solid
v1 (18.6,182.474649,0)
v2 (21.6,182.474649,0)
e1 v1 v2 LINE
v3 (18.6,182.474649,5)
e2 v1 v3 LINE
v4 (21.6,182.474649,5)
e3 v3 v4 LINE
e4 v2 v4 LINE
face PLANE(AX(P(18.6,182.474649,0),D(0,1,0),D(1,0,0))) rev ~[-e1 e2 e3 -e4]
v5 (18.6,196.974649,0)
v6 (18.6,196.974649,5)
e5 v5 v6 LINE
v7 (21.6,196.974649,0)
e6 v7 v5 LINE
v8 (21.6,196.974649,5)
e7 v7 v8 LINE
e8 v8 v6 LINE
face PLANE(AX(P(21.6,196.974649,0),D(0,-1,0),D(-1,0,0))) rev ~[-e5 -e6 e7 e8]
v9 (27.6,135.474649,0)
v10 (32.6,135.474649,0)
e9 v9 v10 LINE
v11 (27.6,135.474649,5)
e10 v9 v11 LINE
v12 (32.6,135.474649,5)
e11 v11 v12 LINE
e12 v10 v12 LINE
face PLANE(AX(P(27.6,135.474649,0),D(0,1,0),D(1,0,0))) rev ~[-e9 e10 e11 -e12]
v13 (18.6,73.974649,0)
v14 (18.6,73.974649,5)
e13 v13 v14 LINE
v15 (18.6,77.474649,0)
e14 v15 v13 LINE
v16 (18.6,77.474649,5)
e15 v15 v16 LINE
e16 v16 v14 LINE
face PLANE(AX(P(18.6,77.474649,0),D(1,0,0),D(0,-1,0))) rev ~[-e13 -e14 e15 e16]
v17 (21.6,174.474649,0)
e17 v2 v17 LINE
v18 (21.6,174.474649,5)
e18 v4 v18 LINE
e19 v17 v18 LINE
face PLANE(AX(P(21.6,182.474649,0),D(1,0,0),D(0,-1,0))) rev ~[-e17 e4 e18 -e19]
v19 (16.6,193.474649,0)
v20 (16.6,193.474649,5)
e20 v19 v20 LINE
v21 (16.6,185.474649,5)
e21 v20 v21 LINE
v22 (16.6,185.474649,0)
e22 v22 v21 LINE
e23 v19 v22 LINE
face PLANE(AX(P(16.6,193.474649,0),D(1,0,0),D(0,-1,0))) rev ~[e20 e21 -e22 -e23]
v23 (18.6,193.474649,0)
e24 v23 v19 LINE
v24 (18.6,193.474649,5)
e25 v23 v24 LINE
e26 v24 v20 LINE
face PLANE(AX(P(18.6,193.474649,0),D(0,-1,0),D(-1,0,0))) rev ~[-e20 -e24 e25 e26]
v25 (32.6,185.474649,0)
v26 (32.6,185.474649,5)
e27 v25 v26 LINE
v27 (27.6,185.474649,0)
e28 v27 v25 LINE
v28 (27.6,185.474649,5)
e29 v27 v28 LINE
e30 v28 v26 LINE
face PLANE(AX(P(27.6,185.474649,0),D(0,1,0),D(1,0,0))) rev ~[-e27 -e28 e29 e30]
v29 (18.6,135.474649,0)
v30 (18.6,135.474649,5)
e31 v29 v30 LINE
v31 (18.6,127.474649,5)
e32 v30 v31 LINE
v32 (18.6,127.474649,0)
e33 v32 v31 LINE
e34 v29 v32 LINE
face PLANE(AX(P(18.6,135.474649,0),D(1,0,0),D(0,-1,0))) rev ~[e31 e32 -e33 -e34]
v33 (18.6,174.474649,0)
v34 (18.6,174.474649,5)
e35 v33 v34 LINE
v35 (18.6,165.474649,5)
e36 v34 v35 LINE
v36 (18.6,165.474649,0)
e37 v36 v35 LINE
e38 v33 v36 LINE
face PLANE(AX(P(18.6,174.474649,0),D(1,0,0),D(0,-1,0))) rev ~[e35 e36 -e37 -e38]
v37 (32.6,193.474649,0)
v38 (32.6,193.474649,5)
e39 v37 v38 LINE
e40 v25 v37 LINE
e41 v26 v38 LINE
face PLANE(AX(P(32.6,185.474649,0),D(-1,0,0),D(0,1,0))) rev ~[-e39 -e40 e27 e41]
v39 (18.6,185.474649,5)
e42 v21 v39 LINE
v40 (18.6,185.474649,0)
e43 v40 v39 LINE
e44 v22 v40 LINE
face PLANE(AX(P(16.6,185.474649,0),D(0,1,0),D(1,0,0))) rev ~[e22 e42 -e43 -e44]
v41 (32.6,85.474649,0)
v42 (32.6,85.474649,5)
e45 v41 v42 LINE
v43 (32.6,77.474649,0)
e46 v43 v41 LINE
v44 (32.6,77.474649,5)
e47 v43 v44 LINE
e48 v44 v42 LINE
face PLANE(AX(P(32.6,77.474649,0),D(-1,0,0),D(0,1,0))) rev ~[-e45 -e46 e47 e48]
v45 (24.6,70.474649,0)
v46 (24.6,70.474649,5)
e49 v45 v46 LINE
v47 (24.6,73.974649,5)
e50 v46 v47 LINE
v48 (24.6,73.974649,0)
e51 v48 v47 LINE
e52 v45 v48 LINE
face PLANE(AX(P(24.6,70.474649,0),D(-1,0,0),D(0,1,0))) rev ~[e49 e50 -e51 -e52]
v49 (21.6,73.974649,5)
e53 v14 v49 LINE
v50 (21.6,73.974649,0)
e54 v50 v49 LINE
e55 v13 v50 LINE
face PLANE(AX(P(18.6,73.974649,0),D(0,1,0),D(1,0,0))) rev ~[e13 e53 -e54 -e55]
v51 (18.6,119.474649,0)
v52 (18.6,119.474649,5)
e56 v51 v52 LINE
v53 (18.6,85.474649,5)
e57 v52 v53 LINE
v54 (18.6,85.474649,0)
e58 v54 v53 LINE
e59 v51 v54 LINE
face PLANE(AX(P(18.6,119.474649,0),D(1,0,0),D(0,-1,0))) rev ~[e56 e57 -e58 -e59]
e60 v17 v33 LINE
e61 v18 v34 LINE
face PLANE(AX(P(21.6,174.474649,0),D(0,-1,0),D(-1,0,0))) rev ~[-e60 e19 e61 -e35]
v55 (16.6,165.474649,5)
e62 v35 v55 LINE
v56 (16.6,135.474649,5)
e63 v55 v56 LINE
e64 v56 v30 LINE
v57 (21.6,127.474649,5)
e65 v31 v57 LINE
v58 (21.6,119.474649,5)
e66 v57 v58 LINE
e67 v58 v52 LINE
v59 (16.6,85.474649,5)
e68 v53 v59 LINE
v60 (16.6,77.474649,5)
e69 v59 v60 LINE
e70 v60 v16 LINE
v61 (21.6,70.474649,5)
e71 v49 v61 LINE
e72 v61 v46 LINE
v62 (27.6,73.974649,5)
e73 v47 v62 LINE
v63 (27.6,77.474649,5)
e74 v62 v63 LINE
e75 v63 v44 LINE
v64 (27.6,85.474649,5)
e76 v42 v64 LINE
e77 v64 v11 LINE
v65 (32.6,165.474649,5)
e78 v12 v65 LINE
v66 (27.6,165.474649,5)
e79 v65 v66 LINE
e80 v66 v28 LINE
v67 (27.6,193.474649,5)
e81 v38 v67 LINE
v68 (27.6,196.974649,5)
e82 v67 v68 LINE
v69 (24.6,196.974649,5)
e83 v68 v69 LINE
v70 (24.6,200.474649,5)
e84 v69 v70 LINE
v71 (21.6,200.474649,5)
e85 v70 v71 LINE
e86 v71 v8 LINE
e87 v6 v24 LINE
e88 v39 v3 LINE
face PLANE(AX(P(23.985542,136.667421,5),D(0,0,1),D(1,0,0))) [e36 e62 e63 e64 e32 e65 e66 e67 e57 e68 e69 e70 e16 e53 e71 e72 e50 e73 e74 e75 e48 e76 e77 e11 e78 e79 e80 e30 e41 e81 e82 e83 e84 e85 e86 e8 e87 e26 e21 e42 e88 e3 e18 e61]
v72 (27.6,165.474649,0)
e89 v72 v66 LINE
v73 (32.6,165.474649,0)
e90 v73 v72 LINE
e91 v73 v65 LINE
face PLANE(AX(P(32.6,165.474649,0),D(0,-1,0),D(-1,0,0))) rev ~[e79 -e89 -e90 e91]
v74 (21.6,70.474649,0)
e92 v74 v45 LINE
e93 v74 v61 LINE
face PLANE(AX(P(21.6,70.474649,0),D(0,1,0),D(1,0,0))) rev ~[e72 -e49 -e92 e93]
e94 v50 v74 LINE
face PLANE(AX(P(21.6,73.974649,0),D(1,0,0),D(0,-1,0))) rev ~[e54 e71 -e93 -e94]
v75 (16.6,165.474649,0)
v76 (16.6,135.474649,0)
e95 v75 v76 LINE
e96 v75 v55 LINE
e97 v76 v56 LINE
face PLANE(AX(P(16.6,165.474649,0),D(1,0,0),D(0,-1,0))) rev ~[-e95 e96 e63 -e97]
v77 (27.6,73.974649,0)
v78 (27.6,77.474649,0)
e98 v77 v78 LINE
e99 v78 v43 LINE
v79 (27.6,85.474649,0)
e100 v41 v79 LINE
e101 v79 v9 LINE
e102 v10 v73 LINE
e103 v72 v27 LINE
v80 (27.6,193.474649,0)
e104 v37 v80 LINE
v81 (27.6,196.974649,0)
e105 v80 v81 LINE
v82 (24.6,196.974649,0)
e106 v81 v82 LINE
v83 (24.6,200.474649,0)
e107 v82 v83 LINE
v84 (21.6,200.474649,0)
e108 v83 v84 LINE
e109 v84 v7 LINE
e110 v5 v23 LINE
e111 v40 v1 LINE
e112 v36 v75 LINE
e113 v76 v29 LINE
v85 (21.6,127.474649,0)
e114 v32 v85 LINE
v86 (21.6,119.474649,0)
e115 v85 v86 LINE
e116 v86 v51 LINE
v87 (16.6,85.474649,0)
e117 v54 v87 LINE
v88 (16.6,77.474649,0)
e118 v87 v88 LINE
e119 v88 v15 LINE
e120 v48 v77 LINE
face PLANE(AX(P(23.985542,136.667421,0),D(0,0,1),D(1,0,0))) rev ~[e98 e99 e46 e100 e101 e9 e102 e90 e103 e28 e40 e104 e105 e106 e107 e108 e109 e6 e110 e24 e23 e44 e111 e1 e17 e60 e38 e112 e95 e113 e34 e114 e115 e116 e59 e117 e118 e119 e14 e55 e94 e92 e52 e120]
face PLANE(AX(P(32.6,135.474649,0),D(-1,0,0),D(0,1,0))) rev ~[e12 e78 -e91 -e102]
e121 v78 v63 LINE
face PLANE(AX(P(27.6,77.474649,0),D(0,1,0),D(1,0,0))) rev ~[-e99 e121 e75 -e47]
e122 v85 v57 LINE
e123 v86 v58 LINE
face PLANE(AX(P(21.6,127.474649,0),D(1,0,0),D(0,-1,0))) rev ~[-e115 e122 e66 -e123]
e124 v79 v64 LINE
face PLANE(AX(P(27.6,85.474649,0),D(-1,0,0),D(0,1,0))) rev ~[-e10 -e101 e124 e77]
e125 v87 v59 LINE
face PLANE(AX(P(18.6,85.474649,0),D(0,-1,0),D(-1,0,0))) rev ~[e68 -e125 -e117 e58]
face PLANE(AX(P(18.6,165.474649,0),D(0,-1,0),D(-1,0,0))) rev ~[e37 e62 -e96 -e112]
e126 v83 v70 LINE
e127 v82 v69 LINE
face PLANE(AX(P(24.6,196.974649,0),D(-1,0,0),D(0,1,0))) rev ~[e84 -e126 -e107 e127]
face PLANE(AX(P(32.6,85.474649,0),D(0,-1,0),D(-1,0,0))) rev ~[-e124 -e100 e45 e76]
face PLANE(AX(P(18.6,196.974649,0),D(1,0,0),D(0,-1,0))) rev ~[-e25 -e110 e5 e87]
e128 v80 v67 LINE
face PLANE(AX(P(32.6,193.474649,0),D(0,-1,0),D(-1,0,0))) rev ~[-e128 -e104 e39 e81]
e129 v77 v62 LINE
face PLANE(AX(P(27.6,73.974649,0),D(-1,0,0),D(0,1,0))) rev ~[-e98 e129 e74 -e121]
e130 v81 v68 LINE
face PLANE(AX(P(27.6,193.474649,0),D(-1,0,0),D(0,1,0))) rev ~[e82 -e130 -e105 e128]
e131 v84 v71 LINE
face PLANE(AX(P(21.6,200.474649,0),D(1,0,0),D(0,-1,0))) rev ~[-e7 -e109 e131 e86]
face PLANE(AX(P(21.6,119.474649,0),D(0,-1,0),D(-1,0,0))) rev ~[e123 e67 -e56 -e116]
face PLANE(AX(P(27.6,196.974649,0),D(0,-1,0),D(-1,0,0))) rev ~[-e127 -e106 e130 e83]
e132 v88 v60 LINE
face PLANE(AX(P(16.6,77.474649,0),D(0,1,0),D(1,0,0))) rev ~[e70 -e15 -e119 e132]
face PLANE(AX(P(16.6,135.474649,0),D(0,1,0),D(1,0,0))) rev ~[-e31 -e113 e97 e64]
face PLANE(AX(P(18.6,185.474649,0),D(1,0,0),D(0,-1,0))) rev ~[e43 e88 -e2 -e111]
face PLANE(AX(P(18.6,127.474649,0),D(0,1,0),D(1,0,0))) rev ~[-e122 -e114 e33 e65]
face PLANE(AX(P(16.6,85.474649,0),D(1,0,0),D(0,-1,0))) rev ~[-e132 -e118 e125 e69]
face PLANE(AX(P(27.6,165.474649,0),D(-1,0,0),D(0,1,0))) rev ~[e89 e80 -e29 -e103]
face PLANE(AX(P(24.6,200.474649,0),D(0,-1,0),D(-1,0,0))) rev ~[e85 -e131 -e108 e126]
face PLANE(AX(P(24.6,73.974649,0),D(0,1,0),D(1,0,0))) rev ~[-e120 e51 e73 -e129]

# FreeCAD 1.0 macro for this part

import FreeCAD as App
import Part
import Sketcher

doc = App.newDocument("Part")
body = doc.addObject("PartDesign::Body", "Body")

# Sketch on XY plane
sketch1 = doc.addObject("Sketcher::SketchObject", "Sketch")
body.addObject(sketch1)
sketch1.AttachmentSupport = (doc.XY_Plane, [""])
sketch1.MapMode = "FlatFace"
sketch1.addGeometry([
    Part.LineSegment(App.Vector(18.6, 77.5, 0), App.Vector(18.6, 74, 0)),  # 0
    Part.LineSegment(App.Vector(18.6, 74, 0), App.Vector(21.6, 74, 0)),  # 1
    Part.LineSegment(App.Vector(21.6, 74, 0), App.Vector(21.6, 70.5, 0)),  # 2
    Part.LineSegment(App.Vector(21.6, 70.5, 0), App.Vector(24.6, 70.5, 0)),  # 3
    Part.LineSegment(App.Vector(24.6, 70.5, 0), App.Vector(24.6, 74, 0)),  # 4
    Part.LineSegment(App.Vector(24.6, 74, 0), App.Vector(27.6, 74, 0)),  # 5
    Part.LineSegment(App.Vector(27.6, 74, 0), App.Vector(27.6, 77.5, 0)),  # 6
    Part.LineSegment(App.Vector(27.6, 77.5, 0), App.Vector(32.6, 77.5, 0)),  # 7
    Part.LineSegment(App.Vector(32.6, 77.5, 0), App.Vector(32.6, 85.5, 0)),  # 8
    Part.LineSegment(App.Vector(32.6, 85.5, 0), App.Vector(27.6, 85.5, 0)),  # 9
    Part.LineSegment(App.Vector(27.6, 85.5, 0), App.Vector(27.6, 135.5, 0)),  # 10
    Part.LineSegment(App.Vector(27.6, 135.5, 0), App.Vector(32.6, 135.5, 0)),  # 11
    Part.LineSegment(App.Vector(32.6, 135.5, 0), App.Vector(32.6, 165.5, 0)),  # 12
    Part.LineSegment(App.Vector(32.6, 165.5, 0), App.Vector(27.6, 165.5, 0)),  # 13
    Part.LineSegment(App.Vector(27.6, 165.5, 0), App.Vector(27.6, 185.5, 0)),  # 14
    Part.LineSegment(App.Vector(27.6, 185.5, 0), App.Vector(32.6, 185.5, 0)),  # 15
    Part.LineSegment(App.Vector(32.6, 185.5, 0), App.Vector(32.6, 193.5, 0)),  # 16
    Part.LineSegment(App.Vector(32.6, 193.5, 0), App.Vector(27.6, 193.5, 0)),  # 17
    Part.LineSegment(App.Vector(27.6, 193.5, 0), App.Vector(27.6, 197, 0)),  # 18
    Part.LineSegment(App.Vector(27.6, 197, 0), App.Vector(24.6, 197, 0)),  # 19
    Part.LineSegment(App.Vector(24.6, 197, 0), App.Vector(24.6, 200.5, 0)),  # 20
    Part.LineSegment(App.Vector(24.6, 200.5, 0), App.Vector(21.6, 200.5, 0)),  # 21
    Part.LineSegment(App.Vector(21.6, 200.5, 0), App.Vector(21.6, 197, 0)),  # 22
    Part.LineSegment(App.Vector(21.6, 197, 0), App.Vector(18.6, 197, 0)),  # 23
    Part.LineSegment(App.Vector(18.6, 197, 0), App.Vector(18.6, 193.5, 0)),  # 24
    Part.LineSegment(App.Vector(18.6, 193.5, 0), App.Vector(16.6, 193.5, 0)),  # 25
    Part.LineSegment(App.Vector(16.6, 193.5, 0), App.Vector(16.6, 185.5, 0)),  # 26
    Part.LineSegment(App.Vector(16.6, 185.5, 0), App.Vector(18.6, 185.5, 0)),  # 27
    Part.LineSegment(App.Vector(18.6, 185.5, 0), App.Vector(18.6, 182.5, 0)),  # 28
    Part.LineSegment(App.Vector(18.6, 182.5, 0), App.Vector(21.6, 182.5, 0)),  # 29
    Part.LineSegment(App.Vector(21.6, 182.5, 0), App.Vector(21.6, 174.5, 0)),  # 30
    Part.LineSegment(App.Vector(21.6, 174.5, 0), App.Vector(18.6, 174.5, 0)),  # 31
    Part.LineSegment(App.Vector(18.6, 174.5, 0), App.Vector(18.6, 165.5, 0)),  # 32
    Part.LineSegment(App.Vector(18.6, 165.5, 0), App.Vector(16.6, 165.5, 0)),  # 33
    Part.LineSegment(App.Vector(16.6, 165.5, 0), App.Vector(16.6, 135.5, 0)),  # 34
    Part.LineSegment(App.Vector(16.6, 135.5, 0), App.Vector(18.6, 135.5, 0)),  # 35
    Part.LineSegment(App.Vector(18.6, 135.5, 0), App.Vector(18.6, 127.5, 0)),  # 36
    Part.LineSegment(App.Vector(18.6, 127.5, 0), App.Vector(21.6, 127.5, 0)),  # 37
    Part.LineSegment(App.Vector(21.6, 127.5, 0), App.Vector(21.6, 119.5, 0)),  # 38
    Part.LineSegment(App.Vector(21.6, 119.5, 0), App.Vector(18.6, 119.5, 0)),  # 39
    Part.LineSegment(App.Vector(18.6, 119.5, 0), App.Vector(18.6, 85.5, 0)),  # 40
    Part.LineSegment(App.Vector(18.6, 85.5, 0), App.Vector(16.6, 85.5, 0)),  # 41
    Part.LineSegment(App.Vector(16.6, 85.5, 0), App.Vector(16.6, 77.5, 0)),  # 42
    Part.LineSegment(App.Vector(16.6, 77.5, 0), App.Vector(18.6, 77.5, 0)),  # 43
], False)
sketch1.addConstraint([
    Sketcher.Constraint("Coincident", 0, 2, 1, 1),
    Sketcher.Constraint("Coincident", 1, 2, 2, 1),
    Sketcher.Constraint("Coincident", 2, 2, 3, 1),
    Sketcher.Constraint("Coincident", 3, 2, 4, 1),
    Sketcher.Constraint("Coincident", 4, 2, 5, 1),
    Sketcher.Constraint("Coincident", 5, 2, 6, 1),
    Sketcher.Constraint("Coincident", 6, 2, 7, 1),
    Sketcher.Constraint("Coincident", 7, 2, 8, 1),
    Sketcher.Constraint("Coincident", 8, 2, 9, 1),
    Sketcher.Constraint("Coincident", 9, 2, 10, 1),
    Sketcher.Constraint("Coincident", 10, 2, 11, 1),
    Sketcher.Constraint("Coincident", 11, 2, 12, 1),
    Sketcher.Constraint("Coincident", 12, 2, 13, 1),
    Sketcher.Constraint("Coincident", 13, 2, 14, 1),
    Sketcher.Constraint("Coincident", 14, 2, 15, 1),
    Sketcher.Constraint("Coincident", 15, 2, 16, 1),
    Sketcher.Constraint("Coincident", 16, 2, 17, 1),
    Sketcher.Constraint("Coincident", 17, 2, 18, 1),
    Sketcher.Constraint("Coincident", 18, 2, 19, 1),
    Sketcher.Constraint("Coincident", 19, 2, 20, 1),
    Sketcher.Constraint("Coincident", 20, 2, 21, 1),
    Sketcher.Constraint("Coincident", 21, 2, 22, 1),
    Sketcher.Constraint("Coincident", 22, 2, 23, 1),
    Sketcher.Constraint("Coincident", 23, 2, 24, 1),
    Sketcher.Constraint("Coincident", 24, 2, 25, 1),
    Sketcher.Constraint("Coincident", 25, 2, 26, 1),
    Sketcher.Constraint("Coincident", 26, 2, 27, 1),
    Sketcher.Constraint("Coincident", 27, 2, 28, 1),
    Sketcher.Constraint("Coincident", 28, 2, 29, 1),
    Sketcher.Constraint("Coincident", 29, 2, 30, 1),
    Sketcher.Constraint("Coincident", 30, 2, 31, 1),
    Sketcher.Constraint("Coincident", 31, 2, 32, 1),
    Sketcher.Constraint("Coincident", 32, 2, 33, 1),
    Sketcher.Constraint("Coincident", 33, 2, 34, 1),
    Sketcher.Constraint("Coincident", 34, 2, 35, 1),
    Sketcher.Constraint("Coincident", 35, 2, 36, 1),
    Sketcher.Constraint("Coincident", 36, 2, 37, 1),
    Sketcher.Constraint("Coincident", 37, 2, 38, 1),
    Sketcher.Constraint("Coincident", 38, 2, 39, 1),
    Sketcher.Constraint("Coincident", 39, 2, 40, 1),
    Sketcher.Constraint("Coincident", 40, 2, 41, 1),
    Sketcher.Constraint("Coincident", 41, 2, 42, 1),
    Sketcher.Constraint("Coincident", 42, 2, 43, 1),
    Sketcher.Constraint("Coincident", 43, 2, 0, 1),
    Sketcher.Constraint("Vertical", 0),
    Sketcher.Constraint("Horizontal", 1),
    Sketcher.Constraint("Vertical", 2),
    Sketcher.Constraint("Horizontal", 3),
    Sketcher.Constraint("Vertical", 4),
    Sketcher.Constraint("Horizontal", 5),
    Sketcher.Constraint("Vertical", 6),
    Sketcher.Constraint("Horizontal", 7),
    Sketcher.Constraint("Vertical", 8),
    Sketcher.Constraint("Horizontal", 9),
    Sketcher.Constraint("Vertical", 10),
    Sketcher.Constraint("Horizontal", 11),
    Sketcher.Constraint("Vertical", 12),
    Sketcher.Constraint("Horizontal", 13),
    Sketcher.Constraint("Vertical", 14),
    Sketcher.Constraint("Horizontal", 15),
    Sketcher.Constraint("Vertical", 16),
    Sketcher.Constraint("Horizontal", 17),
    Sketcher.Constraint("Vertical", 18),
    Sketcher.Constraint("Horizontal", 19),
    Sketcher.Constraint("Vertical", 20),
    Sketcher.Constraint("Horizontal", 21),
    Sketcher.Constraint("Vertical", 22),
    Sketcher.Constraint("Horizontal", 23),
    Sketcher.Constraint("Vertical", 24),
    Sketcher.Constraint("Horizontal", 25),
    Sketcher.Constraint("Vertical", 26),
    Sketcher.Constraint("Horizontal", 27),
    Sketcher.Constraint("Vertical", 28),
    Sketcher.Constraint("Horizontal", 29),
    Sketcher.Constraint("Vertical", 30),
    Sketcher.Constraint("Horizontal", 31),
    Sketcher.Constraint("Vertical", 32),
    Sketcher.Constraint("Horizontal", 33),
    Sketcher.Constraint("Vertical", 34),
    Sketcher.Constraint("Horizontal", 35),
    Sketcher.Constraint("Vertical", 36),
    Sketcher.Constraint("Horizontal", 37),
    Sketcher.Constraint("Vertical", 38),
    Sketcher.Constraint("Horizontal", 39),
    Sketcher.Constraint("Vertical", 40),
    Sketcher.Constraint("Horizontal", 41),
    Sketcher.Constraint("Vertical", 42),
    Sketcher.Constraint("Horizontal", 43),
    Sketcher.Constraint("Horizontal", 1, 2, 4, 2),
    Sketcher.Constraint("Horizontal", 19, 2, 22, 2),
    Sketcher.Constraint("Horizontal", 17, 2, 24, 2),
    Sketcher.Constraint("Horizontal", 15, 2, 26, 2),
    Sketcher.Constraint("Horizontal", 13, 2, 32, 2),
    Sketcher.Constraint("Horizontal", 11, 2, 34, 2),
    Sketcher.Constraint("Horizontal", 9, 2, 40, 2),
    Sketcher.Constraint("Horizontal", 7, 2, 42, 2),
    Sketcher.Constraint("Vertical", 6, 2, 9, 2),
    Sketcher.Constraint("Vertical", 8, 2, 11, 2),
    Sketcher.Constraint("Vertical", 10, 2, 13, 2),
    Sketcher.Constraint("Vertical", 12, 2, 15, 2),
    Sketcher.Constraint("Vertical", 14, 2, 17, 2),
    Sketcher.Constraint("Vertical", 4, 2, 19, 2),
    Sketcher.Constraint("Vertical", 2, 2, 21, 2),
    Sketcher.Constraint("Vertical", 0, 2, 23, 2),
    Sketcher.Constraint("Vertical", 24, 2, 27, 2),
    Sketcher.Constraint("Vertical", 22, 2, 29, 2),
    Sketcher.Constraint("Vertical", 28, 2, 31, 2),
    Sketcher.Constraint("Vertical", 26, 2, 33, 2),
    Sketcher.Constraint("Vertical", 32, 2, 35, 2),
    Sketcher.Constraint("Vertical", 30, 2, 37, 2),
    Sketcher.Constraint("Vertical", 36, 2, 39, 2),
    Sketcher.Constraint("Vertical", 34, 2, 41, 2),
    Sketcher.Constraint("Equal", 1, 3),
    Sketcher.Constraint("Equal", 3, 5),
    Sketcher.Constraint("Equal", 0, 2),
    Sketcher.Constraint("Equal", 8, 16),
    Sketcher.Constraint("Equal", 6, 18),
    Sketcher.Constraint("Equal", 18, 20),
    Sketcher.Constraint("Equal", 39, 28),
    Sketcher.Constraint("Equal", 26, 30),
    Sketcher.Constraint("Equal", 30, 36),
    Sketcher.Constraint("Equal", 36, 38),
    Sketcher.Constraint("DistanceX", 1, 1, 1, 2, 3.0),
    Sketcher.Constraint("DistanceX", 7, 1, 7, 2, 5.0),
    Sketcher.Constraint("DistanceX", 25, 2, 25, 1, 2.0),
    Sketcher.Constraint("DistanceY", 8, 1, 8, 2, 8.0),
    Sketcher.Constraint("DistanceY", 10, 1, 10, 2, 50.0),
    Sketcher.Constraint("DistanceY", 12, 1, 12, 2, 30.0),
    Sketcher.Constraint("DistanceY", 14, 1, 14, 2, 20.0),
    Sketcher.Constraint("DistanceY", 0, 2, 0, 1, 3.5),
    Sketcher.Constraint("DistanceX", -1, 1, 0, 2, 18.6),
    Sketcher.Constraint("DistanceY", -1, 1, 0, 2, 73.974649),
])
pad1 = doc.addObject("PartDesign::Pad", "Pad")
body.addObject(pad1)
pad1.Profile = sketch1
pad1.Length = 5

doc.recompute()
